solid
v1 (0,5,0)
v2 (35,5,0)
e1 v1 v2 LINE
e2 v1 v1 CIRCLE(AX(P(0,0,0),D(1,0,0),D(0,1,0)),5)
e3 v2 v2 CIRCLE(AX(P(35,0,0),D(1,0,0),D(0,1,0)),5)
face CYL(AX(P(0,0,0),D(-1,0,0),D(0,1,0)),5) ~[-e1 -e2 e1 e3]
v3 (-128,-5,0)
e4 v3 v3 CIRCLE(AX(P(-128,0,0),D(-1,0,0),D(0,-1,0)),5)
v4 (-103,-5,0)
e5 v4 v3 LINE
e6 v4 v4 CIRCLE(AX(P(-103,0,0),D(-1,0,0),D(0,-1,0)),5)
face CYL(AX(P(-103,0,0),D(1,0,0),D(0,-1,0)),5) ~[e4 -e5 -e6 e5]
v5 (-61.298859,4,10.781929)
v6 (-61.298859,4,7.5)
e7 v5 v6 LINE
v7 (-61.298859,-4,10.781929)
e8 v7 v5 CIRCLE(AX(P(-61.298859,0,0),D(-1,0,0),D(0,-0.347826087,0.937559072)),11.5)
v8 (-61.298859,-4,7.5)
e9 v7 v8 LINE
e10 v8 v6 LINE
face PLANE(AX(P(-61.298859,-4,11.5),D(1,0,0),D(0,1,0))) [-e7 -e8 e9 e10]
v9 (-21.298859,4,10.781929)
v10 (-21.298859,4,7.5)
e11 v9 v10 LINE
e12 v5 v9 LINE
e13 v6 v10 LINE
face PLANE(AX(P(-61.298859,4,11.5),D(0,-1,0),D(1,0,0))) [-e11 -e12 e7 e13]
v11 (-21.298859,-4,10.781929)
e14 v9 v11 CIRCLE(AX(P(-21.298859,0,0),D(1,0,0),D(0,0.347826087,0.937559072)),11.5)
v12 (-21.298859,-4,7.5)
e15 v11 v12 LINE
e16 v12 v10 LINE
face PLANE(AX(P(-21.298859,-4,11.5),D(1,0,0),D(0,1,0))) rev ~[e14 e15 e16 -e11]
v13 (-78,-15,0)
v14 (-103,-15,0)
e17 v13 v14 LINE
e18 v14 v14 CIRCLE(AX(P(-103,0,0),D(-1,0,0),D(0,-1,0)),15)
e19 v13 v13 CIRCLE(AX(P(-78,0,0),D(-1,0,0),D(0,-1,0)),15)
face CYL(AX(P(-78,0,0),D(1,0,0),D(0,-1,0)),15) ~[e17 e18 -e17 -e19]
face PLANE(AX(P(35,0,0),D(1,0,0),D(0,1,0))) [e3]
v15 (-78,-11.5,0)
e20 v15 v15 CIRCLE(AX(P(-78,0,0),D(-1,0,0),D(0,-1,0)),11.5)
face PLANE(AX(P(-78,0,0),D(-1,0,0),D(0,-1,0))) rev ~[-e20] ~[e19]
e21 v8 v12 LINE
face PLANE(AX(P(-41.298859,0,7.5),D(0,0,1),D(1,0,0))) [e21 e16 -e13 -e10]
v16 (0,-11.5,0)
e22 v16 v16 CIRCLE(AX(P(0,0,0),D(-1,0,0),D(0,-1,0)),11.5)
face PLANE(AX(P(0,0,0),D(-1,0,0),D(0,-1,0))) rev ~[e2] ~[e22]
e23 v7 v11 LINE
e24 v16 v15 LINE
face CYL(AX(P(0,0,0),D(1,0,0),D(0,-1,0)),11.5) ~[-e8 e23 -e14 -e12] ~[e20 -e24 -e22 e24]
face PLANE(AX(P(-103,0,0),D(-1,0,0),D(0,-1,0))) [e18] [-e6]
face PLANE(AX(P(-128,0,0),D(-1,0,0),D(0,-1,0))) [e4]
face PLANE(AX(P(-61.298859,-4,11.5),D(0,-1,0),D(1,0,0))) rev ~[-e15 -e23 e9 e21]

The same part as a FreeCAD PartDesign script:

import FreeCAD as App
import Part
import Sketcher

V = App.Vector
Q = App.Units.Quantity


def add_polygon(sketch, points):
    """Adds a closed chain of lines whose ends are joined by coincident constraints."""
    first, n = sketch.GeometryCount, len(points)
    for a, b in zip(points, points[1:] + points[:1]):
        sketch.addGeometry(Part.LineSegment(App.Vector(*a, 0), App.Vector(*b, 0)), False)
    for i in range(n):
        sketch.addConstraint(Sketcher.Constraint("Coincident", first + i, 2, first + (i + 1) % n, 1))

doc = App.newDocument("Part")
body = doc.addObject("PartDesign::Body", "Body")

sketch1 = body.newObject("Sketcher::SketchObject", "Sketch")
sketch1.AttachmentSupport = (doc.getObject("YZ_Plane"), [""])
sketch1.MapMode = "FlatFace"
sketch1.addGeometry(Part.Circle(V(0, 0, 0), V(0, 0, 1), 5), False)
sketch1.addConstraint([
    Sketcher.Constraint("Coincident", 0, 3, -1, 1),
    Sketcher.Constraint("Diameter", 0, Q("10 mm")),
])
pad1 = body.newObject("PartDesign::Pad", "Pad")
pad1.Profile = sketch1
pad1.Length = 35

sketch2 = body.newObject("Sketcher::SketchObject", "Sketch001")
sketch2.AttachmentSupport = (doc.getObject("YZ_Plane"), [""])
sketch2.MapMode = "FlatFace"
sketch2.addGeometry(Part.Circle(V(0, 0, 0), V(0, 0, 1), 12), False)
sketch2.addConstraint([
    Sketcher.Constraint("Coincident", 0, 3, -1, 1),
    Sketcher.Constraint("Diameter", 0, Q("23 mm")),
])
pad2 = body.newObject("PartDesign::Pad", "Pad001")
pad2.Profile = sketch2
pad2.Length = 78
pad2.Reversed = True

sketch3 = body.newObject("Sketcher::SketchObject", "Sketch002")
sketch3.AttachmentSupport = (doc.getObject("YZ_Plane"), [""])
sketch3.MapMode = "FlatFace"
sketch3.AttachmentOffset = App.Placement(V(0, 0, -78), App.Rotation())
sketch3.addGeometry(Part.Circle(V(0, 0, 0), V(0, 0, 1), 15), False)
sketch3.addConstraint([
    Sketcher.Constraint("Coincident", 0, 3, -1, 1),
    Sketcher.Constraint("Diameter", 0, Q("30 mm")),
])
pad3 = body.newObject("PartDesign::Pad", "Pad002")
pad3.Profile = sketch3
pad3.Length = 25
pad3.Reversed = True

sketch4 = body.newObject("Sketcher::SketchObject", "Sketch003")
sketch4.AttachmentSupport = (doc.getObject("YZ_Plane"), [""])
sketch4.MapMode = "FlatFace"
sketch4.AttachmentOffset = App.Placement(V(0, 0, -103), App.Rotation())
sketch4.addGeometry(Part.Circle(V(0, 0, 0), V(0, 0, 1), 5), False)
sketch4.addConstraint([
    Sketcher.Constraint("Coincident", 0, 3, -1, 1),
    Sketcher.Constraint("Diameter", 0, Q("10 mm")),
])
pad4 = body.newObject("PartDesign::Pad", "Pad003")
pad4.Profile = sketch4
pad4.Length = 25
pad4.Reversed = True

sketch5 = body.newObject("Sketcher::SketchObject", "Sketch004")
sketch5.AttachmentSupport = (doc.getObject("XY_Plane"), [""])
sketch5.MapMode = "FlatFace"
sketch5.AttachmentOffset = App.Placement(V(0, 0, 11.5), App.Rotation())
add_polygon(sketch5, [(-61, 4), (-61, -4), (-21, -4), (-21, 4)])
sketch5.addConstraint([
    Sketcher.Constraint("Vertical", 0),
    Sketcher.Constraint("Horizontal", 1),
    Sketcher.Constraint("Vertical", 2),
    Sketcher.Constraint("Horizontal", 3),
    Sketcher.Constraint("DistanceX", 1, 1, 1, 2, Q("40 mm")),
    Sketcher.Constraint("DistanceY", 0, 2, 0, 1, Q("8 mm")),
    Sketcher.Constraint("DistanceY", 0, 2, -1, 1, Q("4 mm")),
    Sketcher.Constraint("DistanceX", 0, 2, -1, 1, Q("61.298859 mm")),
])
pocket1 = body.newObject("PartDesign::Pocket", "Pocket")
pocket1.Profile = sketch5
pocket1.Length = 4

doc.recompute()
